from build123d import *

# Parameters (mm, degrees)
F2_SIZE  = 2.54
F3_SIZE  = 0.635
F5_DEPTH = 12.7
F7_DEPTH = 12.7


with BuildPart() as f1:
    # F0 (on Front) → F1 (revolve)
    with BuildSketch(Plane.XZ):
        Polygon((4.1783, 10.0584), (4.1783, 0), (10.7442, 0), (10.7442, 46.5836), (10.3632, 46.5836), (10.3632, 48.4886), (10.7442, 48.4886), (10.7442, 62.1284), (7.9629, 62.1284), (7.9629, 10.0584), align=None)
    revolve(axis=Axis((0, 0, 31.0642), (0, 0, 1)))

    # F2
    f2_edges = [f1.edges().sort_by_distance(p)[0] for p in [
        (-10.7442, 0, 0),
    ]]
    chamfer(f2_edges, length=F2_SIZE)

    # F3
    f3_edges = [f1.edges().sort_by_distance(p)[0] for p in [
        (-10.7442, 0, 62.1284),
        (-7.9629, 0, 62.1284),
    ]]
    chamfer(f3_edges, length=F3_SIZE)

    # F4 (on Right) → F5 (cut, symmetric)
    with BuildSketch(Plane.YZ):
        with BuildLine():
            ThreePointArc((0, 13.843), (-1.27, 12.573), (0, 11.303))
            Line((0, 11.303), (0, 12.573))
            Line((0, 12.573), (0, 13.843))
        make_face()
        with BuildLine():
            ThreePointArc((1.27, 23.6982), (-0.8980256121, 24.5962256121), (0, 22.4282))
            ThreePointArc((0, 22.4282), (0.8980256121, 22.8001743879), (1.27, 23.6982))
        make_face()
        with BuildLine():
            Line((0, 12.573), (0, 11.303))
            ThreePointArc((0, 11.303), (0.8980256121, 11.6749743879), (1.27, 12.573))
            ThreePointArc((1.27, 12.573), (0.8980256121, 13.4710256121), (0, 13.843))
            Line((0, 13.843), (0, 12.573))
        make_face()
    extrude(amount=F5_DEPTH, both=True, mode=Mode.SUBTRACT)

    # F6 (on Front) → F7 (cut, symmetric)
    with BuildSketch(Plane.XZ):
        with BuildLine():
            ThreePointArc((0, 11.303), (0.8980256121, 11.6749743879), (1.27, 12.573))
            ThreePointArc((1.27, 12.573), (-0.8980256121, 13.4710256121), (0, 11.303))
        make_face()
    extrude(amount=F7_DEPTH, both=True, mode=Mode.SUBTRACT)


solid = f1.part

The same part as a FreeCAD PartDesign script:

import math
import FreeCAD as App
import Part
import Sketcher

V = App.Vector
Q = App.Units.Quantity


def edges_at(feature, points):
    """Names of the edges that pass closest to the given points."""
    edges = feature.Shape.Edges
    near = lambda p: min(range(len(edges)), key=lambda i: edges[i].distToShape(Part.Vertex(*p))[0])
    return sorted({f"Edge{near(p) + 1}" for p in points})

doc = App.newDocument("Part")
body = doc.addObject("PartDesign::Body", "Body")

# Sketch on XZ plane
sketch1 = body.newObject("Sketcher::SketchObject", "Sketch")
sketch1.AttachmentSupport = (doc.getObject("XZ_Plane"), [""])
sketch1.MapMode = "FlatFace"
sketch1.addGeometry([
    Part.LineSegment(V(4.18, 10.06, 0), V(4.18, 0, 0)),  # 0
    Part.LineSegment(V(4.18, 0, 0), V(10.74, 0, 0)),  # 1
    Part.LineSegment(V(10.74, 0, 0), V(10.74, 46.58, 0)),  # 2
    Part.LineSegment(V(10.74, 46.58, 0), V(10.36, 46.58, 0)),  # 3
    Part.LineSegment(V(10.36, 46.58, 0), V(10.36, 48.49, 0)),  # 4
    Part.LineSegment(V(10.36, 48.49, 0), V(10.74, 48.49, 0)),  # 5
    Part.LineSegment(V(10.74, 48.49, 0), V(10.74, 62.13, 0)),  # 6
    Part.LineSegment(V(10.74, 62.13, 0), V(7.96, 62.13, 0)),  # 7
    Part.LineSegment(V(7.96, 62.13, 0), V(7.96, 10.06, 0)),  # 8
    Part.LineSegment(V(7.96, 10.06, 0), V(4.18, 10.06, 0)),  # 9
], False)
sketch1.addConstraint([
    Sketcher.Constraint("Coincident", 0, 2, 1, 1),
    Sketcher.Constraint("Coincident", 1, 2, 2, 1),
    Sketcher.Constraint("Coincident", 2, 2, 3, 1),
    Sketcher.Constraint("Coincident", 3, 2, 4, 1),
    Sketcher.Constraint("Coincident", 4, 2, 5, 1),
    Sketcher.Constraint("Coincident", 5, 2, 6, 1),
    Sketcher.Constraint("Coincident", 6, 2, 7, 1),
    Sketcher.Constraint("Coincident", 7, 2, 8, 1),
    Sketcher.Constraint("Coincident", 8, 2, 9, 1),
    Sketcher.Constraint("Coincident", 9, 2, 0, 1),
    Sketcher.Constraint("Vertical", 0),
    Sketcher.Constraint("Horizontal", 1),
    Sketcher.Constraint("Vertical", 2),
    Sketcher.Constraint("Horizontal", 3),
    Sketcher.Constraint("Vertical", 4),
    Sketcher.Constraint("Horizontal", 5),
    Sketcher.Constraint("Vertical", 6),
    Sketcher.Constraint("Horizontal", 7),
    Sketcher.Constraint("Vertical", 8),
    Sketcher.Constraint("Horizontal", 9),
    Sketcher.Constraint("PointOnObject", 0, 2, -1),
    Sketcher.Constraint("Vertical", 2, 2, 5, 2),
    Sketcher.Constraint("DistanceY", 8, 2, 8, 1, Q("2.05 in")),
    Sketcher.Constraint("DistanceX", 3, 2, 3, 1, Q("0.015 in")),
    Sketcher.Constraint("DistanceX", 9, 2, 9, 1, Q("0.149 in")),
    Sketcher.Constraint("DistanceY", 0, 2, 0, 1, Q("0.396 in")),
    Sketcher.Constraint("DistanceY", 2, 1, 2, 2, Q("1.834 in")),
    Sketcher.Constraint("DistanceY", 4, 1, 4, 2, Q("0.075 in")),
    Sketcher.Constraint("DistanceX", 1, 1, 1, 2, Q("0.2585 in")),
    Sketcher.Constraint("DistanceX", -1, 1, 1, 2, Q("0.423 in")),
])
revolution = body.newObject("PartDesign::Revolution", "Revolution")
revolution.Profile = sketch1
revolution.ReferenceAxis = (sketch1, ["V_Axis"])
revolution.Angle = 360
doc.recompute()

chamfer = body.newObject("PartDesign::Chamfer", "Chamfer")
chamfer.Base = (revolution, edges_at(revolution, [(-10.744, 0, 0)]))
chamfer.Size = Q("0.1 in")
doc.recompute()

chamfer2 = body.newObject("PartDesign::Chamfer", "Chamfer001")
chamfer2.Base = (chamfer, edges_at(chamfer, [(-10.744, 0, 62.128), (-7.963, 0, 62.128)]))
chamfer2.Size = Q("0.025 in")

# Sketch on YZ plane
sketch2 = body.newObject("Sketcher::SketchObject", "Sketch001")
sketch2.AttachmentSupport = (doc.getObject("YZ_Plane"), [""])
sketch2.MapMode = "FlatFace"
sketch2.addGeometry([
    Part.ArcOfCircle(Part.Circle(V(0, 12.6, 0), V(0, 0, 1), 1.3), math.radians(90), math.radians(270)),  # 0
    Part.ArcOfCircle(Part.Circle(V(0, 12.6, 0), V(0, 0, 1), 1.3), math.radians(-90), math.radians(0)),  # 1
    Part.ArcOfCircle(Part.Circle(V(0, 12.6, 0), V(0, 0, 1), 1.3), math.radians(0), math.radians(90)),  # 2
    Part.ArcOfCircle(Part.Circle(V(0, 23.7, 0), V(0, 0, 1), 1.3), math.radians(0), math.radians(270)),  # 3
    Part.ArcOfCircle(Part.Circle(V(0, 23.7, 0), V(0, 0, 1), 1.3), math.radians(-90), math.radians(0)),  # 4
], False)
sketch2.addConstraint([
    Sketcher.Constraint("Tangent", 0, 2, 1, 1),
    Sketcher.Constraint("Tangent", 1, 2, 2, 1),
    Sketcher.Constraint("Tangent", 2, 2, 0, 1),
    Sketcher.Constraint("Tangent", 3, 1, 4, 2),
    Sketcher.Constraint("Coincident", 4, 1, 3, 2),
    Sketcher.Constraint("Equal", 2, 3),
    Sketcher.Constraint("PointOnObject", 0, 3, -2),
    Sketcher.Constraint("PointOnObject", 3, 3, -2),
    Sketcher.Constraint("PointOnObject", 0, 2, -2),
    Sketcher.Constraint("PointOnObject", 2, 2, -2),
    Sketcher.Constraint("PointOnObject", 4, 1, -2),
    Sketcher.Constraint("Horizontal", 2, 3, 1, 2),
    Sketcher.Constraint("Horizontal", 4, 3, 3, 1),
    Sketcher.Constraint("Radius", 0, Q("0.05 in")),
    Sketcher.Constraint("DistanceY", -1, 1, 0, 3, Q("0.495 in")),
    Sketcher.Constraint("DistanceY", -1, 1, 3, 3, Q("0.933 in")),
])
pocket1 = body.newObject("PartDesign::Pocket", "Pocket")
pocket1.Profile = sketch2
pocket1.Length = Q("1 in")
pocket1.Midplane = True

# Sketch on XZ plane
sketch3 = body.newObject("Sketcher::SketchObject", "Sketch002")
sketch3.AttachmentSupport = (doc.getObject("XZ_Plane"), [""])
sketch3.MapMode = "FlatFace"
sketch3.addGeometry([
    Part.ArcOfCircle(Part.Circle(V(0, 12.6, 0), V(0, 0, 1), 1.3), math.radians(-90), math.radians(0)),
    Part.ArcOfCircle(Part.Circle(V(0, 12.6, 0), V(0, 0, 1), 1.3), math.radians(0), math.radians(270)),
], False)
sketch3.addConstraint([
    Sketcher.Constraint("Tangent", 0, 1, 1, 2),
    Sketcher.Constraint("Coincident", 1, 1, 0, 2),
    Sketcher.Constraint("PointOnObject", 0, 3, -2),
    Sketcher.Constraint("PointOnObject", 0, 1, -2),
    Sketcher.Constraint("Horizontal", 0, 3, 1, 1),
    Sketcher.Constraint("Radius", 0, Q("0.05 in")),
    Sketcher.Constraint("DistanceY", -1, 1, 0, 3, Q("0.495 in")),
])
pocket2 = body.newObject("PartDesign::Pocket", "Pocket001")
pocket2.Profile = sketch3
pocket2.Length = Q("1 in")
pocket2.Midplane = True

doc.recompute()
